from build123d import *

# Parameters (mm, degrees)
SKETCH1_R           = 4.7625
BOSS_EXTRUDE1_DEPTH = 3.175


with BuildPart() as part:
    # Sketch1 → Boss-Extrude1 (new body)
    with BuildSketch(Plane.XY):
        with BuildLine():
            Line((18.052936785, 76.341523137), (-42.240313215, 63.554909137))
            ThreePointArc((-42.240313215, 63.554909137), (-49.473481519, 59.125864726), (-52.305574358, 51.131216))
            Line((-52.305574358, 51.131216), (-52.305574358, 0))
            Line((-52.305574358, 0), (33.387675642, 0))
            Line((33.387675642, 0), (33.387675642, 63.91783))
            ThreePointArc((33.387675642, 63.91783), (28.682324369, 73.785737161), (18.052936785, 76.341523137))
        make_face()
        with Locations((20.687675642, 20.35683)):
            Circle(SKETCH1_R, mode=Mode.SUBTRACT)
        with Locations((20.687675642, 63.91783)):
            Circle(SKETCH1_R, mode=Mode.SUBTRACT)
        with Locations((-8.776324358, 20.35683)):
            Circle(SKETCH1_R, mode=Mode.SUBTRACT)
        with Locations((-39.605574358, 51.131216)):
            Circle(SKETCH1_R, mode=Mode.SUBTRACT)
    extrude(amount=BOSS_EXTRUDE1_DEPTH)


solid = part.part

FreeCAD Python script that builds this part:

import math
import FreeCAD as App
import Part
import Sketcher
Q = App.Units.Quantity

doc = App.newDocument("Part")
body = doc.addObject("PartDesign::Body", "Body")

# Sketch on XY plane
sketch1 = body.newObject("Sketcher::SketchObject", "Sketch")
sketch1.AttachmentSupport = (doc.getObject("XY_Plane"), [""])
sketch1.MapMode = "FlatFace"
sketch1.addGeometry(Part.LineSegment(App.Vector(18.052937, 76.341523, 0), App.Vector(-42.240313, 63.554909, 0)), False)
sketch1.addGeometry(Part.ArcOfCircle(Part.Circle(App.Vector(-39.605574, 51.131216, 0), App.Vector(0, 0, 1), 12.7), math.radians(101.973529), math.radians(180)), False)
sketch1.addGeometry(Part.LineSegment(App.Vector(-52.305574, 51.131216, 0), App.Vector(-52.305574, 0, 0)), False)
sketch1.addGeometry(Part.LineSegment(App.Vector(-52.305574, 0, 0), App.Vector(33.387676, 0, 0)), False)
sketch1.addGeometry(Part.LineSegment(App.Vector(33.387676, 0, 0), App.Vector(33.387676, 63.91783, 0)), False)
sketch1.addGeometry(Part.ArcOfCircle(Part.Circle(App.Vector(20.687676, 63.91783, 0), App.Vector(0, 0, 1), 12.7), math.radians(0), math.radians(101.973529)), False)
sketch1.addGeometry(Part.Circle(App.Vector(-8.776324, 20.35683, 0), App.Vector(0, 0, 1), 4.7625), False)
sketch1.addGeometry(Part.Circle(App.Vector(20.687676, 20.35683, 0), App.Vector(0, 0, 1), 4.7625), False)
sketch1.addGeometry(Part.Circle(App.Vector(-39.605574, 51.131216, 0), App.Vector(0, 0, 1), 4.7625), False)
sketch1.addGeometry(Part.Circle(App.Vector(20.687676, 63.91783, 0), App.Vector(0, 0, 1), 4.7625), False)
sketch1.addConstraint(Sketcher.Constraint("Tangent", 0, 2, 1, 1))
sketch1.addConstraint(Sketcher.Constraint("Tangent", 1, 2, 2, 1))
sketch1.addConstraint(Sketcher.Constraint("Coincident", 2, 2, 3, 1))
sketch1.addConstraint(Sketcher.Constraint("Coincident", 3, 2, 4, 1))
sketch1.addConstraint(Sketcher.Constraint("Tangent", 4, 2, 5, 1))
sketch1.addConstraint(Sketcher.Constraint("Tangent", 5, 2, 0, 1))
sketch1.addConstraint(Sketcher.Constraint("Vertical", 2))
sketch1.addConstraint(Sketcher.Constraint("Horizontal", 3))
sketch1.addConstraint(Sketcher.Constraint("Vertical", 4))
sketch1.addConstraint(Sketcher.Constraint("Coincident", 8, 3, 1, 3))
sketch1.addConstraint(Sketcher.Constraint("Coincident", 9, 3, 5, 3))
sketch1.addConstraint(Sketcher.Constraint("Equal", 1, 5))
sketch1.addConstraint(Sketcher.Constraint("Equal", 6, 7))
sketch1.addConstraint(Sketcher.Constraint("Equal", 7, 8))
sketch1.addConstraint(Sketcher.Constraint("Equal", 8, 9))
sketch1.addConstraint(Sketcher.Constraint("PointOnObject", 2, 2, -1))
sketch1.addConstraint(Sketcher.Constraint("Horizontal", 6, 3, 7, 3))
sketch1.addConstraint(Sketcher.Constraint("Vertical", 5, 3, 7, 3))
sketch1.addConstraint(Sketcher.Constraint("Radius", 1, Q("0.5 in")))
sketch1.addConstraint(Sketcher.Constraint("Diameter", 6, Q("0.375 in")))
sketch1.addConstraint(Sketcher.Constraint("DistanceX", 6, 3, 5, 3, Q("1.16 in")))
sketch1.addConstraint(Sketcher.Constraint("DistanceY", 6, 3, 5, 3, Q("1.715 in")))
sketch1.addConstraint(Sketcher.Constraint("DistanceX", 3, 1, 3, 2, 85.69325))
sketch1.addConstraint(Sketcher.Constraint("DistanceY", 4, 1, 4, 2, 63.91783))
sketch1.addConstraint(Sketcher.Constraint("Distance", 0, 61.634191))
sketch1.addConstraint(Sketcher.Constraint("DistanceX", 1, 3, -1, 1, 39.605574))
pad1 = body.newObject("PartDesign::Pad", "Pad")
pad1.Profile = sketch1
pad1.Length = Q("0.125 in")

doc.recompute()
